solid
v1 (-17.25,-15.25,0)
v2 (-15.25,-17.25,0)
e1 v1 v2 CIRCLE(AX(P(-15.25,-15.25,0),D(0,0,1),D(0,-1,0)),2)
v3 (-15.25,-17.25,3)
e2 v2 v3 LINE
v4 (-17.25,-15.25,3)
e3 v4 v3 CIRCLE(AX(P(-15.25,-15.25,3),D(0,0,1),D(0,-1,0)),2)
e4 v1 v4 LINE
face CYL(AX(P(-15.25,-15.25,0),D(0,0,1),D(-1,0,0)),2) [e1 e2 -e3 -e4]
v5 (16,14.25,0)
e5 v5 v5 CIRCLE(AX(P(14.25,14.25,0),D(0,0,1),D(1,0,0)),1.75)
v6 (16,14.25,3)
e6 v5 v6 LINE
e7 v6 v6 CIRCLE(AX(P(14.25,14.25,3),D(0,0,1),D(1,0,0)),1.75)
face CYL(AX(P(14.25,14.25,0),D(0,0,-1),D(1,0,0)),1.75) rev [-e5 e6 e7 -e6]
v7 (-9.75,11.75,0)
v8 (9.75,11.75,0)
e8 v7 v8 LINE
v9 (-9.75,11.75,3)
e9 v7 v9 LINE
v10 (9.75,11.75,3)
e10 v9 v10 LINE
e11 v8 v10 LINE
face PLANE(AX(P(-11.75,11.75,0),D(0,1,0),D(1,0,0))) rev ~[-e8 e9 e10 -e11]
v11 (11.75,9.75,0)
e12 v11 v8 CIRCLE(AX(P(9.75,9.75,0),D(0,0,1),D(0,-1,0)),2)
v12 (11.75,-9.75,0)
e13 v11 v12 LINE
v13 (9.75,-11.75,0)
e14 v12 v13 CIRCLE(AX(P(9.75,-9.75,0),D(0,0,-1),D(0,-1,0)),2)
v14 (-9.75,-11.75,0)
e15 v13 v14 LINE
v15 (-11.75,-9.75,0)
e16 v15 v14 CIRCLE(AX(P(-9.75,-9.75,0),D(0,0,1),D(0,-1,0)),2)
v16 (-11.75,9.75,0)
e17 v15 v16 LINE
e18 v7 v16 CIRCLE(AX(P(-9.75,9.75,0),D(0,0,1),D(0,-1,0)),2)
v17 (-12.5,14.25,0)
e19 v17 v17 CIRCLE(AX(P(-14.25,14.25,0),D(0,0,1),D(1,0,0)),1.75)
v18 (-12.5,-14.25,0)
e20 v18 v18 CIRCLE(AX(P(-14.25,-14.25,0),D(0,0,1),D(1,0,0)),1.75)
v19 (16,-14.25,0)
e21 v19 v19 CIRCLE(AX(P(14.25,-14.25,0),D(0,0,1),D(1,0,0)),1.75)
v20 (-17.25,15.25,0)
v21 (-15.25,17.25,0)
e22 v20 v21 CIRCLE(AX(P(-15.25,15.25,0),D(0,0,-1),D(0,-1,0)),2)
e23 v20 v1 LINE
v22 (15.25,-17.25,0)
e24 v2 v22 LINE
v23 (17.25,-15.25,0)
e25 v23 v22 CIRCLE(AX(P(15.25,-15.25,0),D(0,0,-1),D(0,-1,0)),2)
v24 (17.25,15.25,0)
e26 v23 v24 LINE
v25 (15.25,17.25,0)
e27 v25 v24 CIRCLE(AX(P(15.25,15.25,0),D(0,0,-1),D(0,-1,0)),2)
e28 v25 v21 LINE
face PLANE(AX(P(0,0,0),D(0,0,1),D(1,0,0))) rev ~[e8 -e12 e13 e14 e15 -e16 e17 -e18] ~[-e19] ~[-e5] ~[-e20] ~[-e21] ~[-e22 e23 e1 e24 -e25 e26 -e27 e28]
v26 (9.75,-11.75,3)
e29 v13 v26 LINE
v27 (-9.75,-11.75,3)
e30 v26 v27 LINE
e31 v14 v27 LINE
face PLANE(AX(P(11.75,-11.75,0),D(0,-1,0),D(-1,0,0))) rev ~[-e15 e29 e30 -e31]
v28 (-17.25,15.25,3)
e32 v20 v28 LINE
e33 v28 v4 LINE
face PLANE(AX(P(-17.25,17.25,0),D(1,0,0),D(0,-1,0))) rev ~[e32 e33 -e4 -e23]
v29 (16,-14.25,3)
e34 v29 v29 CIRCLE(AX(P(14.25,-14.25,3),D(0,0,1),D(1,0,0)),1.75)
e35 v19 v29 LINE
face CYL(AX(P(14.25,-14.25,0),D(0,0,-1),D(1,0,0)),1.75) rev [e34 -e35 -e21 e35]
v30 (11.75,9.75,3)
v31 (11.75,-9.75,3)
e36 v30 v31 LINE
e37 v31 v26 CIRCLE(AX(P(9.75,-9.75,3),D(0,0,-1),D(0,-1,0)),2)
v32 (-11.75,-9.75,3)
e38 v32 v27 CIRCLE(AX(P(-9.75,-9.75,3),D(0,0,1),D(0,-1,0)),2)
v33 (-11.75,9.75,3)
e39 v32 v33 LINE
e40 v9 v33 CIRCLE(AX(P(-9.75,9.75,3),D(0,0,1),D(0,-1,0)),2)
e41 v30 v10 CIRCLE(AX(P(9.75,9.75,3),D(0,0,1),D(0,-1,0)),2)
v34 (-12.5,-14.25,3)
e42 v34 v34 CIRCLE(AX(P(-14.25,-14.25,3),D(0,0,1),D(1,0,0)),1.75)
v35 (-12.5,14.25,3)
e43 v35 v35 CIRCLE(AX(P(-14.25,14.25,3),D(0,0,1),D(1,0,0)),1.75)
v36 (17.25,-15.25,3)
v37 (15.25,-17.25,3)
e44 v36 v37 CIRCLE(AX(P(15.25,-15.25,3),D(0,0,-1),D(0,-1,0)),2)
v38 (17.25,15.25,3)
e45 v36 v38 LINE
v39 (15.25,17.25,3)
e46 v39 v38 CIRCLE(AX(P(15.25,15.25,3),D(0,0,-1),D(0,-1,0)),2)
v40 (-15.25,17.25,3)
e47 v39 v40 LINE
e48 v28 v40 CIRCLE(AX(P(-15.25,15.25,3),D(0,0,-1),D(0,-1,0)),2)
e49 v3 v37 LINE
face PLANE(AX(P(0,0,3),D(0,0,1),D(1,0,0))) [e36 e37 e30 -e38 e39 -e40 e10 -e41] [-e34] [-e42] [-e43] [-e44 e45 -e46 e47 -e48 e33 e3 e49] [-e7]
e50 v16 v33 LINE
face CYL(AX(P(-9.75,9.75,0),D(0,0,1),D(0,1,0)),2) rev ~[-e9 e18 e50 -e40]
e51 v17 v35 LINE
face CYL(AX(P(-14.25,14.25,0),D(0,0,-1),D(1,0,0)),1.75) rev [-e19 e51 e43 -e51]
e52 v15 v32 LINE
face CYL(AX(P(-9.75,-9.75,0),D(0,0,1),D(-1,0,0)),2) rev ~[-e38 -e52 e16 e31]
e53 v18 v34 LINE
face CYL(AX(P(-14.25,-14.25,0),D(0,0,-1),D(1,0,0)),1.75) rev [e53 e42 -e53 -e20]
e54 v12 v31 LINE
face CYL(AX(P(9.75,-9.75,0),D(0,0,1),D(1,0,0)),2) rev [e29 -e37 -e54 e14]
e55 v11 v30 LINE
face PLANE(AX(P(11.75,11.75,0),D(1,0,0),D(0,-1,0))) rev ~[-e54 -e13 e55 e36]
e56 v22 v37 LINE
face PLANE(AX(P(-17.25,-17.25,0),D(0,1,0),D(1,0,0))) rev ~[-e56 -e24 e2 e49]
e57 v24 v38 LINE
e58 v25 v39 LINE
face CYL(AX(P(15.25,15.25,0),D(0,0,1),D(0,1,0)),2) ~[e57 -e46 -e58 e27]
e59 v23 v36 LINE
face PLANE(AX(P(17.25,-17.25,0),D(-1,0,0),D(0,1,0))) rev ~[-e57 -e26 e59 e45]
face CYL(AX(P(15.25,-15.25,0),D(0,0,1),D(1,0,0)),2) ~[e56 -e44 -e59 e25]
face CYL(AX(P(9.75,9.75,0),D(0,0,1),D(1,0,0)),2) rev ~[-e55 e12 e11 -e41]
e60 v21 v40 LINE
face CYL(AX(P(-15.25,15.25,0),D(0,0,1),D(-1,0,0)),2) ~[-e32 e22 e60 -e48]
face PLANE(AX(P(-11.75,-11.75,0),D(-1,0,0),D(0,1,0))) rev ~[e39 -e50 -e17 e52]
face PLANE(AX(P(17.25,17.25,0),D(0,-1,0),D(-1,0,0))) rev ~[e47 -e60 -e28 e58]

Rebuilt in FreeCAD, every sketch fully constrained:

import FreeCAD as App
import Part
import Sketcher
from FreeCAD import Vector
Q = App.Units.Quantity


def edges_at(feature, points):
    """Names of the edges that pass closest to the given points."""
    edges = feature.Shape.Edges
    near = lambda p: min(range(len(edges)), key=lambda i: edges[i].distToShape(Part.Vertex(*p))[0])
    return sorted({f"Edge{near(p) + 1}" for p in points})


def add_polygon(sketch, points):
    """Adds a closed chain of lines whose ends are joined by coincident constraints."""
    first, n = sketch.GeometryCount, len(points)
    for a, b in zip(points, points[1:] + points[:1]):
        sketch.addGeometry(Part.LineSegment(App.Vector(*a, 0), App.Vector(*b, 0)), False)
    for i in range(n):
        sketch.addConstraint(Sketcher.Constraint("Coincident", first + i, 2, first + (i + 1) % n, 1))

doc = App.newDocument("Part")
body = doc.addObject("PartDesign::Body", "Body")

# Sketch on XY plane
sketch1 = doc.addObject("Sketcher::SketchObject", "Sketch")
body.addObject(sketch1)
sketch1.AttachmentSupport = (doc.XY_Plane, [""])
sketch1.MapMode = "FlatFace"
add_polygon(sketch1, [(-17.2, 17.2), (-17.2, -17.2), (17.2, -17.2), (17.2, 17.2)])  # lines 0-3
sketch1.addGeometry(Part.Circle(Vector(-14.2, -14.2, 0), Vector(0, 0, 1), 1.8), False)  # 4
sketch1.addGeometry(Part.Circle(Vector(14.2, -14.2, 0), Vector(0, 0, 1), 1.8), False)  # 5
sketch1.addGeometry(Part.Circle(Vector(-14.2, 14.2, 0), Vector(0, 0, 1), 1.8), False)  # 6
add_polygon(sketch1, [(11.8, 11.8), (11.8, -11.8), (-11.8, -11.8), (-11.8, 11.8)])  # lines 7-10
sketch1.addGeometry(Part.Circle(Vector(14.2, 14.2, 0), Vector(0, 0, 1), 1.8), False)  # 11
sketch1.addConstraint([
    Sketcher.Constraint("Vertical", 0),
    Sketcher.Constraint("Horizontal", 1),
    Sketcher.Constraint("Vertical", 2),
    Sketcher.Constraint("Horizontal", 3),
    Sketcher.Constraint("Vertical", 7),
    Sketcher.Constraint("Horizontal", 8),
    Sketcher.Constraint("Vertical", 9),
    Sketcher.Constraint("Horizontal", 10),
    Sketcher.Constraint("Equal", 4, 5),
    Sketcher.Constraint("Equal", 5, 6),
    Sketcher.Constraint("Equal", 6, 11),
    Sketcher.Constraint("Symmetric", 5, 3, 6, 3, -1, 1),
    Sketcher.Constraint("Symmetric", 4, 3, 11, 3, -1, 1),
    Sketcher.Constraint("Symmetric", 0, 2, 2, 2, -1, 1),
    Sketcher.Constraint("Symmetric", 7, 2, 9, 2, -1, 1),
    Sketcher.Constraint("Symmetric", 4, 3, 5, 3, -2),
    Sketcher.Constraint("Equal", 3, 0),
    Sketcher.Constraint("Equal", 10, 7),
    Sketcher.Constraint("Diameter", 4, Q("3.5 mm")),
    Sketcher.Constraint("DistanceX", 1, 1, 1, 2, Q("34.5 mm")),
    Sketcher.Constraint("DistanceX", 0, 2, 4, 3, Q("3 mm")),
    Sketcher.Constraint("DistanceY", 0, 2, 4, 3, Q("3 mm")),
    Sketcher.Constraint("DistanceX", 7, 2, 1, 2, Q("5.5 mm")),
])
pad1 = doc.addObject("PartDesign::Pad", "Pad")
body.addObject(pad1)
pad1.Profile = sketch1
pad1.Length = 3
doc.recompute()

fillet = doc.addObject("PartDesign::Fillet", "Fillet")
body.addObject(fillet)
fillet.Base = (pad1, edges_at(pad1, [
    (-17.25, -17.25, 1.5),
    (-11.75, -11.75, 1.5),
    (-11.75, 11.75, 1.5),
    (-17.25, 17.25, 1.5),
    (17.25, 17.25, 1.5),
    (11.75, 11.75, 1.5),
    (11.75, -11.75, 1.5),
    (17.25, -17.25, 1.5),
]))
fillet.Radius = 2

doc.recompute()
